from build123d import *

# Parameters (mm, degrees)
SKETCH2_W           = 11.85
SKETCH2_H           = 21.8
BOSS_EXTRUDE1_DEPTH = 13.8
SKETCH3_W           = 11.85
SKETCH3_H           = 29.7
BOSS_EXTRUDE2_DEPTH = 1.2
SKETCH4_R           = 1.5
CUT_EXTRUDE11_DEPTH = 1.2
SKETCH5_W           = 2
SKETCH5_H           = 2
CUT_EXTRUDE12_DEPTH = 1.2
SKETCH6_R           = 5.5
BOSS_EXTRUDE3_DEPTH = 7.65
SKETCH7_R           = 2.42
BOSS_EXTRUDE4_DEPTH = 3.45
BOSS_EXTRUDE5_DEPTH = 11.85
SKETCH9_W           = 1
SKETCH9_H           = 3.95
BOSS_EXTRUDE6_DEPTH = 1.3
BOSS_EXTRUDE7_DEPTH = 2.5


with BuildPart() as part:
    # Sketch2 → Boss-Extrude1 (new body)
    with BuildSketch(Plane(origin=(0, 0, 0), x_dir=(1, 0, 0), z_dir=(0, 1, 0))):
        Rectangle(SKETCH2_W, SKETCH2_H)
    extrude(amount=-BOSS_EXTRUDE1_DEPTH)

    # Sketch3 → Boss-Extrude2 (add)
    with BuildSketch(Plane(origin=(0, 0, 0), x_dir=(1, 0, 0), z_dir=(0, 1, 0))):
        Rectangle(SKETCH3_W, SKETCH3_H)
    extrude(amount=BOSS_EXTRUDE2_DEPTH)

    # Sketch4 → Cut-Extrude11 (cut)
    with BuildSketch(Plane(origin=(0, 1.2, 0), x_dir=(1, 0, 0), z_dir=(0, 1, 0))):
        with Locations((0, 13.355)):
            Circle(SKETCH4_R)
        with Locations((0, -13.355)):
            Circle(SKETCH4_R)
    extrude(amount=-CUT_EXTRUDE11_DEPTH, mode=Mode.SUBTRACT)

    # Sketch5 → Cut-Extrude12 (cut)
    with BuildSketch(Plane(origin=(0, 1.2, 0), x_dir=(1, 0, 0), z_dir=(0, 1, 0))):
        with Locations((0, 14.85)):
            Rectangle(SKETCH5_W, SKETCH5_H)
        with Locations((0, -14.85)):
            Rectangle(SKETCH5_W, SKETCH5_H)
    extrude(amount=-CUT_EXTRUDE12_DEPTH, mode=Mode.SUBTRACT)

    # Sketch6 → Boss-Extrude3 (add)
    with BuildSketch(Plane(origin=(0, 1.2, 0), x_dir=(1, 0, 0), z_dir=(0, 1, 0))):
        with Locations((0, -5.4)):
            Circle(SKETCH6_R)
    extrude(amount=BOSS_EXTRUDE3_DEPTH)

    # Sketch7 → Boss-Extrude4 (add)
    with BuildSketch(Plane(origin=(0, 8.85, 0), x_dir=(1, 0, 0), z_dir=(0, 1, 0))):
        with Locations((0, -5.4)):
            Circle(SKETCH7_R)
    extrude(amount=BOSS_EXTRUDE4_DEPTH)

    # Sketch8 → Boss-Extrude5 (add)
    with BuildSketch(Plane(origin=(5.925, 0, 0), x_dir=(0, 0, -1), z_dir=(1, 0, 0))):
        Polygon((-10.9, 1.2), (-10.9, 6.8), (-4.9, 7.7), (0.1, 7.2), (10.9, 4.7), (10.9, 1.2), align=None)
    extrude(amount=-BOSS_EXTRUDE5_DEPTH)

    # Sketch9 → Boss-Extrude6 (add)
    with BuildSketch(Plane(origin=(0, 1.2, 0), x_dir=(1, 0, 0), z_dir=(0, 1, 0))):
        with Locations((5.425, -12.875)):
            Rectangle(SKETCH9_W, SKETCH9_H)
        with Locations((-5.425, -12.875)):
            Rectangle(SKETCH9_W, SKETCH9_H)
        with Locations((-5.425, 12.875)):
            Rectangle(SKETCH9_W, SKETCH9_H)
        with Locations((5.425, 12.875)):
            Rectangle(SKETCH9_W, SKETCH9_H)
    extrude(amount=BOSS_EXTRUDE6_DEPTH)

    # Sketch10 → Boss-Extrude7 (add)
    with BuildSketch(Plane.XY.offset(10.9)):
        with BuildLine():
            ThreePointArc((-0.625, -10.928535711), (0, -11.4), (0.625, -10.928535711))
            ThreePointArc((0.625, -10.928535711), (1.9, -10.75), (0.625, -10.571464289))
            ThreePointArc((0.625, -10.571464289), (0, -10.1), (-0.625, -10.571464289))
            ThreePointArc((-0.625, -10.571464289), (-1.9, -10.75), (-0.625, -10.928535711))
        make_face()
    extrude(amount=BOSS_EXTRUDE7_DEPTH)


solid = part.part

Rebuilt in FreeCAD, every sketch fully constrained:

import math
import FreeCAD as App
import Part
import Sketcher
Q = App.Units.Quantity

doc = App.newDocument("Part")
body = doc.addObject("PartDesign::Body", "Body")

# Sketch on XZ plane
sketch1 = doc.addObject("Sketcher::SketchObject", "Sketch")
body.addObject(sketch1)
sketch1.AttachmentSupport = (doc.XZ_Plane, [""])
sketch1.MapMode = "FlatFace"
sketch1.addGeometry(Part.LineSegment(App.Vector(-6, -11, 0), App.Vector(-6, 11, 0)), False)
sketch1.addGeometry(Part.LineSegment(App.Vector(-6, 11, 0), App.Vector(6, 11, 0)), False)
sketch1.addGeometry(Part.LineSegment(App.Vector(6, 11, 0), App.Vector(6, -11, 0)), False)
sketch1.addGeometry(Part.LineSegment(App.Vector(6, -11, 0), App.Vector(-6, -11, 0)), False)
sketch1.addConstraint(Sketcher.Constraint("Coincident", 0, 2, 1, 1))
sketch1.addConstraint(Sketcher.Constraint("Coincident", 1, 2, 2, 1))
sketch1.addConstraint(Sketcher.Constraint("Coincident", 2, 2, 3, 1))
sketch1.addConstraint(Sketcher.Constraint("Coincident", 3, 2, 0, 1))
sketch1.addConstraint(Sketcher.Constraint("Vertical", 0))
sketch1.addConstraint(Sketcher.Constraint("Horizontal", 1))
sketch1.addConstraint(Sketcher.Constraint("Vertical", 2))
sketch1.addConstraint(Sketcher.Constraint("Horizontal", 3))
sketch1.addConstraint(Sketcher.Constraint("Symmetric", 0, 2, 2, 2, -1, 1))
sketch1.addConstraint(Sketcher.Constraint("DistanceY", 0, 1, 0, 2, Q("21.8 mm")))
sketch1.addConstraint(Sketcher.Constraint("DistanceX", 1, 1, 1, 2, Q("11.85 mm")))
pad1 = doc.addObject("PartDesign::Pad", "Pad")
body.addObject(pad1)
pad1.Profile = sketch1
pad1.Length = 13.8

# Sketch on XZ plane
sketch2 = doc.addObject("Sketcher::SketchObject", "Sketch001")
body.addObject(sketch2)
sketch2.AttachmentSupport = (doc.XZ_Plane, [""])
sketch2.MapMode = "FlatFace"
sketch2.addGeometry(Part.LineSegment(App.Vector(-6, -15, 0), App.Vector(-6, 15, 0)), False)
sketch2.addGeometry(Part.LineSegment(App.Vector(-6, 15, 0), App.Vector(6, 15, 0)), False)
sketch2.addGeometry(Part.LineSegment(App.Vector(6, 15, 0), App.Vector(6, -15, 0)), False)
sketch2.addGeometry(Part.LineSegment(App.Vector(6, -15, 0), App.Vector(-6, -15, 0)), False)
sketch2.addConstraint(Sketcher.Constraint("Coincident", 0, 2, 1, 1))
sketch2.addConstraint(Sketcher.Constraint("Coincident", 1, 2, 2, 1))
sketch2.addConstraint(Sketcher.Constraint("Coincident", 2, 2, 3, 1))
sketch2.addConstraint(Sketcher.Constraint("Coincident", 3, 2, 0, 1))
sketch2.addConstraint(Sketcher.Constraint("Vertical", 0))
sketch2.addConstraint(Sketcher.Constraint("Horizontal", 1))
sketch2.addConstraint(Sketcher.Constraint("Vertical", 2))
sketch2.addConstraint(Sketcher.Constraint("Horizontal", 3))
sketch2.addConstraint(Sketcher.Constraint("Symmetric", 0, 2, 2, 2, -1, 1))
sketch2.addConstraint(Sketcher.Constraint("DistanceY", 0, 1, 0, 2, Q("29.7 mm")))
sketch2.addConstraint(Sketcher.Constraint("DistanceX", 1, 1, 1, 2, Q("11.85 mm")))
pad2 = doc.addObject("PartDesign::Pad", "Pad001")
body.addObject(pad2)
pad2.Profile = sketch2
pad2.Length = 1.2
pad2.Reversed = True

# Sketch on XZ plane
sketch3 = doc.addObject("Sketcher::SketchObject", "Sketch002")
body.addObject(sketch3)
sketch3.AttachmentSupport = (doc.XZ_Plane, [""])
sketch3.MapMode = "FlatFace"
sketch3.AttachmentOffset = App.Placement(App.Vector(0, 0, -1.2), App.Rotation())
sketch3.addGeometry(Part.Circle(App.Vector(0, -13.4, 0), App.Vector(0, 0, 1), 1.5), False)
sketch3.addGeometry(Part.Circle(App.Vector(0, 13.4, 0), App.Vector(0, 0, 1), 1.5), False)
sketch3.addConstraint(Sketcher.Constraint("Equal", 0, 1))
sketch3.addConstraint(Sketcher.Constraint("Symmetric", 0, 3, 1, 3, -1, 1))
sketch3.addConstraint(Sketcher.Constraint("PointOnObject", 0, 3, -2))
sketch3.addConstraint(Sketcher.Constraint("Diameter", 0, Q("3 mm")))
sketch3.addConstraint(Sketcher.Constraint("DistanceY", 0, 3, 1, 3, Q("26.71 mm")))
pocket1 = doc.addObject("PartDesign::Pocket", "Pocket")
body.addObject(pocket1)
pocket1.Profile = sketch3
pocket1.Length = 1.2
pocket1.Reversed = True

# Sketch on XZ plane
sketch4 = doc.addObject("Sketcher::SketchObject", "Sketch003")
body.addObject(sketch4)
sketch4.AttachmentSupport = (doc.XZ_Plane, [""])
sketch4.MapMode = "FlatFace"
sketch4.AttachmentOffset = App.Placement(App.Vector(0, 0, -1.2), App.Rotation())
sketch4.addGeometry(Part.LineSegment(App.Vector(-1, -15.8, 0), App.Vector(-1, -13.8, 0)), False)
sketch4.addGeometry(Part.LineSegment(App.Vector(-1, -13.8, 0), App.Vector(1, -13.8, 0)), False)
sketch4.addGeometry(Part.LineSegment(App.Vector(1, -13.8, 0), App.Vector(1, -15.8, 0)), False)
sketch4.addGeometry(Part.LineSegment(App.Vector(1, -15.8, 0), App.Vector(-1, -15.8, 0)), False)
sketch4.addGeometry(Part.LineSegment(App.Vector(-1, 13.8, 0), App.Vector(-1, 15.8, 0)), False)
sketch4.addGeometry(Part.LineSegment(App.Vector(-1, 15.8, 0), App.Vector(1, 15.8, 0)), False)
sketch4.addGeometry(Part.LineSegment(App.Vector(1, 15.8, 0), App.Vector(1, 13.8, 0)), False)
sketch4.addGeometry(Part.LineSegment(App.Vector(1, 13.8, 0), App.Vector(-1, 13.8, 0)), False)
sketch4.addConstraint(Sketcher.Constraint("Coincident", 0, 2, 1, 1))
sketch4.addConstraint(Sketcher.Constraint("Coincident", 1, 2, 2, 1))
sketch4.addConstraint(Sketcher.Constraint("Coincident", 2, 2, 3, 1))
sketch4.addConstraint(Sketcher.Constraint("Coincident", 3, 2, 0, 1))
sketch4.addConstraint(Sketcher.Constraint("Coincident", 4, 2, 5, 1))
sketch4.addConstraint(Sketcher.Constraint("Coincident", 5, 2, 6, 1))
sketch4.addConstraint(Sketcher.Constraint("Coincident", 6, 2, 7, 1))
sketch4.addConstraint(Sketcher.Constraint("Coincident", 7, 2, 4, 1))
sketch4.addConstraint(Sketcher.Constraint("Vertical", 0))
sketch4.addConstraint(Sketcher.Constraint("Horizontal", 1))
sketch4.addConstraint(Sketcher.Constraint("Vertical", 2))
sketch4.addConstraint(Sketcher.Constraint("Horizontal", 3))
sketch4.addConstraint(Sketcher.Constraint("Vertical", 4))
sketch4.addConstraint(Sketcher.Constraint("Horizontal", 5))
sketch4.addConstraint(Sketcher.Constraint("Vertical", 6))
sketch4.addConstraint(Sketcher.Constraint("Horizontal", 7))
sketch4.addConstraint(Sketcher.Constraint("Symmetric", 2, 2, 4, 2, -1, 1))
sketch4.addConstraint(Sketcher.Constraint("Symmetric", 0, 2, 6, 2, -1, 1))
sketch4.addConstraint(Sketcher.Constraint("Vertical", 3, 2, 4, 2))
sketch4.addConstraint(Sketcher.Constraint("Equal", 7, 0))
sketch4.addConstraint(Sketcher.Constraint("DistanceX", 1, 1, 1, 2, Q("2 mm")))
sketch4.addConstraint(Sketcher.Constraint("DistanceY", 0, 2, 4, 2, Q("29.7 mm")))
pocket2 = doc.addObject("PartDesign::Pocket", "Pocket001")
body.addObject(pocket2)
pocket2.Profile = sketch4
pocket2.Length = 1.2
pocket2.Reversed = True

# Sketch on XZ plane
sketch5 = doc.addObject("Sketcher::SketchObject", "Sketch004")
body.addObject(sketch5)
sketch5.AttachmentSupport = (doc.XZ_Plane, [""])
sketch5.MapMode = "FlatFace"
sketch5.AttachmentOffset = App.Placement(App.Vector(0, 0, -1.2), App.Rotation())
sketch5.addGeometry(Part.Circle(App.Vector(0, 5, 0), App.Vector(0, 0, 1), 6), False)
sketch5.addConstraint(Sketcher.Constraint("PointOnObject", 0, 3, -2))
sketch5.addConstraint(Sketcher.Constraint("Diameter", 0, Q("11 mm")))
sketch5.addConstraint(Sketcher.Constraint("DistanceY", -1, 1, 0, 3, Q("5.4 mm")))
pad3 = doc.addObject("PartDesign::Pad", "Pad002")
body.addObject(pad3)
pad3.Profile = sketch5
pad3.Length = 7.65
pad3.Reversed = True

# Sketch on XZ plane
sketch6 = doc.addObject("Sketcher::SketchObject", "Sketch005")
body.addObject(sketch6)
sketch6.AttachmentSupport = (doc.XZ_Plane, [""])
sketch6.MapMode = "FlatFace"
sketch6.AttachmentOffset = App.Placement(App.Vector(0, 0, -8.85), App.Rotation())
sketch6.addGeometry(Part.Circle(App.Vector(0, 5.4, 0), App.Vector(0, 0, 1), 2.4), False)
sketch6.addConstraint(Sketcher.Constraint("PointOnObject", 0, 3, -2))
sketch6.addConstraint(Sketcher.Constraint("Diameter", 0, Q("4.84 mm")))
sketch6.addConstraint(Sketcher.Constraint("DistanceY", -1, 1, 0, 3, Q("5.4 mm")))
pad4 = doc.addObject("PartDesign::Pad", "Pad003")
body.addObject(pad4)
pad4.Profile = sketch6
pad4.Length = 3.45
pad4.Reversed = True

# Sketch on YZ plane
sketch7 = doc.addObject("Sketcher::SketchObject", "Sketch006")
body.addObject(sketch7)
sketch7.AttachmentSupport = (doc.YZ_Plane, [""])
sketch7.MapMode = "FlatFace"
sketch7.AttachmentOffset = App.Placement(App.Vector(0, 0, 5.925), App.Rotation())
sketch7.addGeometry(Part.LineSegment(App.Vector(6.8, 10.9, 0), App.Vector(1.2, 10.9, 0)), False)
sketch7.addGeometry(Part.LineSegment(App.Vector(1.2, 10.9, 0), App.Vector(1.2, -10.9, 0)), False)
sketch7.addGeometry(Part.LineSegment(App.Vector(1.2, -10.9, 0), App.Vector(4.7, -10.9, 0)), False)
sketch7.addGeometry(Part.LineSegment(App.Vector(4.7, -10.9, 0), App.Vector(7.2, -0.1, 0)), False)
sketch7.addGeometry(Part.LineSegment(App.Vector(7.2, -0.1, 0), App.Vector(7.7, 4.9, 0)), False)
sketch7.addGeometry(Part.LineSegment(App.Vector(7.7, 4.9, 0), App.Vector(6.8, 10.9, 0)), False)
sketch7.addConstraint(Sketcher.Constraint("Coincident", 0, 2, 1, 1))
sketch7.addConstraint(Sketcher.Constraint("Coincident", 1, 2, 2, 1))
sketch7.addConstraint(Sketcher.Constraint("Coincident", 2, 2, 3, 1))
sketch7.addConstraint(Sketcher.Constraint("Coincident", 3, 2, 4, 1))
sketch7.addConstraint(Sketcher.Constraint("Coincident", 4, 2, 5, 1))
sketch7.addConstraint(Sketcher.Constraint("Coincident", 5, 2, 0, 1))
sketch7.addConstraint(Sketcher.Constraint("Horizontal", 0))
sketch7.addConstraint(Sketcher.Constraint("Vertical", 1))
sketch7.addConstraint(Sketcher.Constraint("Horizontal", 2))
sketch7.addConstraint(Sketcher.Constraint("DistanceX", 0, 2, 0, 1, Q("5.6 mm")))
sketch7.addConstraint(Sketcher.Constraint("DistanceX", 2, 1, 2, 2, Q("3.5 mm")))
sketch7.addConstraint(Sketcher.Constraint("DistanceY", 1, 2, 1, 1, Q("21.8 mm")))
sketch7.addConstraint(Sketcher.Constraint("DistanceX", 1, 2, 3, 2, Q("6 mm")))
sketch7.addConstraint(Sketcher.Constraint("DistanceY", 3, 2, 0, 2, Q("11 mm")))
sketch7.addConstraint(Sketcher.Constraint("DistanceY", 3, 2, 4, 2, Q("5 mm")))
sketch7.addConstraint(Sketcher.Constraint("DistanceX", 2, 2, 4, 2, Q("3 mm")))
sketch7.addConstraint(Sketcher.Constraint("DistanceX", -1, 1, 0, 2, Q("1.2 mm")))
sketch7.addConstraint(Sketcher.Constraint("DistanceY", -1, 1, 0, 2, Q("10.9 mm")))
pad5 = doc.addObject("PartDesign::Pad", "Pad004")
body.addObject(pad5)
pad5.Profile = sketch7
pad5.Length = 11.85
pad5.Reversed = True

# Sketch on XZ plane
sketch8 = doc.addObject("Sketcher::SketchObject", "Sketch007")
body.addObject(sketch8)
sketch8.AttachmentSupport = (doc.XZ_Plane, [""])
sketch8.MapMode = "FlatFace"
sketch8.AttachmentOffset = App.Placement(App.Vector(0, 0, -1.2), App.Rotation())
sketch8.addGeometry(Part.LineSegment(App.Vector(4.9, 10.9, 0), App.Vector(4.9, 14.8, 0)), False)
sketch8.addGeometry(Part.LineSegment(App.Vector(4.9, 14.8, 0), App.Vector(5.9, 14.8, 0)), False)
sketch8.addGeometry(Part.LineSegment(App.Vector(5.9, 14.8, 0), App.Vector(5.9, 10.9, 0)), False)
sketch8.addGeometry(Part.LineSegment(App.Vector(5.9, 10.9, 0), App.Vector(4.9, 10.9, 0)), False)
sketch8.addGeometry(Part.LineSegment(App.Vector(-5.9, 10.9, 0), App.Vector(-5.9, 14.8, 0)), False)
sketch8.addGeometry(Part.LineSegment(App.Vector(-5.9, 14.8, 0), App.Vector(-4.9, 14.8, 0)), False)
sketch8.addGeometry(Part.LineSegment(App.Vector(-4.9, 14.8, 0), App.Vector(-4.9, 10.9, 0)), False)
sketch8.addGeometry(Part.LineSegment(App.Vector(-4.9, 10.9, 0), App.Vector(-5.9, 10.9, 0)), False)
sketch8.addGeometry(Part.LineSegment(App.Vector(-5.9, -14.8, 0), App.Vector(-5.9, -10.9, 0)), False)
sketch8.addGeometry(Part.LineSegment(App.Vector(-5.9, -10.9, 0), App.Vector(-4.9, -10.9, 0)), False)
sketch8.addGeometry(Part.LineSegment(App.Vector(-4.9, -10.9, 0), App.Vector(-4.9, -14.8, 0)), False)
sketch8.addGeometry(Part.LineSegment(App.Vector(-4.9, -14.8, 0), App.Vector(-5.9, -14.8, 0)), False)
sketch8.addGeometry(Part.LineSegment(App.Vector(4.9, -14.8, 0), App.Vector(4.9, -10.9, 0)), False)
sketch8.addGeometry(Part.LineSegment(App.Vector(4.9, -10.9, 0), App.Vector(5.9, -10.9, 0)), False)
sketch8.addGeometry(Part.LineSegment(App.Vector(5.9, -10.9, 0), App.Vector(5.9, -14.8, 0)), False)
sketch8.addGeometry(Part.LineSegment(App.Vector(5.9, -14.8, 0), App.Vector(4.9, -14.8, 0)), False)
sketch8.addConstraint(Sketcher.Constraint("Coincident", 0, 2, 1, 1))
sketch8.addConstraint(Sketcher.Constraint("Coincident", 1, 2, 2, 1))
sketch8.addConstraint(Sketcher.Constraint("Coincident", 2, 2, 3, 1))
sketch8.addConstraint(Sketcher.Constraint("Coincident", 3, 2, 0, 1))
sketch8.addConstraint(Sketcher.Constraint("Coincident", 4, 2, 5, 1))
sketch8.addConstraint(Sketcher.Constraint("Coincident", 5, 2, 6, 1))
sketch8.addConstraint(Sketcher.Constraint("Coincident", 6, 2, 7, 1))
sketch8.addConstraint(Sketcher.Constraint("Coincident", 7, 2, 4, 1))
sketch8.addConstraint(Sketcher.Constraint("Coincident", 8, 2, 9, 1))
sketch8.addConstraint(Sketcher.Constraint("Coincident", 9, 2, 10, 1))
sketch8.addConstraint(Sketcher.Constraint("Coincident", 10, 2, 11, 1))
sketch8.addConstraint(Sketcher.Constraint("Coincident", 11, 2, 8, 1))
sketch8.addConstraint(Sketcher.Constraint("Coincident", 12, 2, 13, 1))
sketch8.addConstraint(Sketcher.Constraint("Coincident", 13, 2, 14, 1))
sketch8.addConstraint(Sketcher.Constraint("Coincident", 14, 2, 15, 1))
sketch8.addConstraint(Sketcher.Constraint("Coincident", 15, 2, 12, 1))
sketch8.addConstraint(Sketcher.Constraint("Vertical", 0))
sketch8.addConstraint(Sketcher.Constraint("Horizontal", 1))
sketch8.addConstraint(Sketcher.Constraint("Vertical", 2))
sketch8.addConstraint(Sketcher.Constraint("Horizontal", 3))
sketch8.addConstraint(Sketcher.Constraint("Vertical", 4))
sketch8.addConstraint(Sketcher.Constraint("Horizontal", 5))
sketch8.addConstraint(Sketcher.Constraint("Vertical", 6))
sketch8.addConstraint(Sketcher.Constraint("Horizontal", 7))
sketch8.addConstraint(Sketcher.Constraint("Vertical", 8))
sketch8.addConstraint(Sketcher.Constraint("Horizontal", 9))
sketch8.addConstraint(Sketcher.Constraint("Vertical", 10))
sketch8.addConstraint(Sketcher.Constraint("Horizontal", 11))
sketch8.addConstraint(Sketcher.Constraint("Vertical", 12))
sketch8.addConstraint(Sketcher.Constraint("Horizontal", 13))
sketch8.addConstraint(Sketcher.Constraint("Vertical", 14))
sketch8.addConstraint(Sketcher.Constraint("Horizontal", 15))
sketch8.addConstraint(Sketcher.Constraint("Symmetric", 2, 2, 8, 2, -1, 1))
sketch8.addConstraint(Sketcher.Constraint("Symmetric", 0, 2, 10, 2, -1, 1))
sketch8.addConstraint(Sketcher.Constraint("Symmetric", 6, 2, 12, 2, -1, 1))
sketch8.addConstraint(Sketcher.Constraint("Symmetric", 4, 2, 14, 2, -1, 1))
sketch8.addConstraint(Sketcher.Constraint("Symmetric", 1, 2, 4, 2, -2))
sketch8.addConstraint(Sketcher.Constraint("Symmetric", 3, 2, 6, 2, -2))
sketch8.addConstraint(Sketcher.Constraint("DistanceX", 1, 1, 1, 2, Q("1 mm")))
sketch8.addConstraint(Sketcher.Constraint("DistanceY", 0, 1, 0, 2, Q("3.95 mm")))
sketch8.addConstraint(Sketcher.Constraint("DistanceY", -1, 1, 2, 2, Q("10.9 mm")))
sketch8.addConstraint(Sketcher.Constraint("DistanceX", 4, 2, 0, 2, Q("10.85 mm")))
pad6 = doc.addObject("PartDesign::Pad", "Pad005")
body.addObject(pad6)
pad6.Profile = sketch8
pad6.Length = 1.3
pad6.Reversed = True

# Sketch on XY plane
sketch9 = doc.addObject("Sketcher::SketchObject", "Sketch008")
body.addObject(sketch9)
sketch9.AttachmentSupport = (doc.XY_Plane, [""])
sketch9.MapMode = "FlatFace"
sketch9.AttachmentOffset = App.Placement(App.Vector(0, 0, 10.9), App.Rotation())
sketch9.addGeometry(Part.ArcOfCircle(Part.Circle(App.Vector(0, -10.75, 0), App.Vector(0, 0, 1), 0.65), math.radians(-164), math.radians(-16)), False)
sketch9.addGeometry(Part.ArcOfCircle(Part.Circle(App.Vector(1.25, -10.75, 0), App.Vector(0, 0, 1), 0.65), math.radians(-164), math.radians(164)), False)
sketch9.addGeometry(Part.ArcOfCircle(Part.Circle(App.Vector(0, -10.75, 0), App.Vector(0, 0, 1), 0.65), math.radians(16), math.radians(164)), False)
sketch9.addGeometry(Part.ArcOfCircle(Part.Circle(App.Vector(-1.25, -10.75, 0), App.Vector(0, 0, 1), 0.65), math.radians(16), math.radians(344)), False)
sketch9.addConstraint(Sketcher.Constraint("Coincident", 0, 2, 1, 1))
sketch9.addConstraint(Sketcher.Constraint("Coincident", 1, 2, 2, 1))
sketch9.addConstraint(Sketcher.Constraint("Coincident", 2, 2, 3, 1))
sketch9.addConstraint(Sketcher.Constraint("Coincident", 3, 2, 0, 1))
sketch9.addConstraint(Sketcher.Constraint("Coincident", 2, 3, 0, 3))
sketch9.addConstraint(Sketcher.Constraint("Equal", 0, 1))
sketch9.addConstraint(Sketcher.Constraint("Equal", 1, 2))
sketch9.addConstraint(Sketcher.Constraint("Equal", 2, 3))
sketch9.addConstraint(Sketcher.Constraint("Symmetric", 1, 3, 3, 3, -2))
sketch9.addConstraint(Sketcher.Constraint("PointOnObject", 0, 3, -2))
sketch9.addConstraint(Sketcher.Constraint("Horizontal", 0, 3, 1, 3))
sketch9.addConstraint(Sketcher.Constraint("Radius", 0, Q("0.65 mm")))
sketch9.addConstraint(Sketcher.Constraint("DistanceX", 3, 3, 1, 3, Q("2.5 mm")))
sketch9.addConstraint(Sketcher.Constraint("DistanceY", 0, 3, -1, 1, Q("10.75 mm")))
pad7 = doc.addObject("PartDesign::Pad", "Pad006")
body.addObject(pad7)
pad7.Profile = sketch9
pad7.Length = 2.5

doc.recompute()
